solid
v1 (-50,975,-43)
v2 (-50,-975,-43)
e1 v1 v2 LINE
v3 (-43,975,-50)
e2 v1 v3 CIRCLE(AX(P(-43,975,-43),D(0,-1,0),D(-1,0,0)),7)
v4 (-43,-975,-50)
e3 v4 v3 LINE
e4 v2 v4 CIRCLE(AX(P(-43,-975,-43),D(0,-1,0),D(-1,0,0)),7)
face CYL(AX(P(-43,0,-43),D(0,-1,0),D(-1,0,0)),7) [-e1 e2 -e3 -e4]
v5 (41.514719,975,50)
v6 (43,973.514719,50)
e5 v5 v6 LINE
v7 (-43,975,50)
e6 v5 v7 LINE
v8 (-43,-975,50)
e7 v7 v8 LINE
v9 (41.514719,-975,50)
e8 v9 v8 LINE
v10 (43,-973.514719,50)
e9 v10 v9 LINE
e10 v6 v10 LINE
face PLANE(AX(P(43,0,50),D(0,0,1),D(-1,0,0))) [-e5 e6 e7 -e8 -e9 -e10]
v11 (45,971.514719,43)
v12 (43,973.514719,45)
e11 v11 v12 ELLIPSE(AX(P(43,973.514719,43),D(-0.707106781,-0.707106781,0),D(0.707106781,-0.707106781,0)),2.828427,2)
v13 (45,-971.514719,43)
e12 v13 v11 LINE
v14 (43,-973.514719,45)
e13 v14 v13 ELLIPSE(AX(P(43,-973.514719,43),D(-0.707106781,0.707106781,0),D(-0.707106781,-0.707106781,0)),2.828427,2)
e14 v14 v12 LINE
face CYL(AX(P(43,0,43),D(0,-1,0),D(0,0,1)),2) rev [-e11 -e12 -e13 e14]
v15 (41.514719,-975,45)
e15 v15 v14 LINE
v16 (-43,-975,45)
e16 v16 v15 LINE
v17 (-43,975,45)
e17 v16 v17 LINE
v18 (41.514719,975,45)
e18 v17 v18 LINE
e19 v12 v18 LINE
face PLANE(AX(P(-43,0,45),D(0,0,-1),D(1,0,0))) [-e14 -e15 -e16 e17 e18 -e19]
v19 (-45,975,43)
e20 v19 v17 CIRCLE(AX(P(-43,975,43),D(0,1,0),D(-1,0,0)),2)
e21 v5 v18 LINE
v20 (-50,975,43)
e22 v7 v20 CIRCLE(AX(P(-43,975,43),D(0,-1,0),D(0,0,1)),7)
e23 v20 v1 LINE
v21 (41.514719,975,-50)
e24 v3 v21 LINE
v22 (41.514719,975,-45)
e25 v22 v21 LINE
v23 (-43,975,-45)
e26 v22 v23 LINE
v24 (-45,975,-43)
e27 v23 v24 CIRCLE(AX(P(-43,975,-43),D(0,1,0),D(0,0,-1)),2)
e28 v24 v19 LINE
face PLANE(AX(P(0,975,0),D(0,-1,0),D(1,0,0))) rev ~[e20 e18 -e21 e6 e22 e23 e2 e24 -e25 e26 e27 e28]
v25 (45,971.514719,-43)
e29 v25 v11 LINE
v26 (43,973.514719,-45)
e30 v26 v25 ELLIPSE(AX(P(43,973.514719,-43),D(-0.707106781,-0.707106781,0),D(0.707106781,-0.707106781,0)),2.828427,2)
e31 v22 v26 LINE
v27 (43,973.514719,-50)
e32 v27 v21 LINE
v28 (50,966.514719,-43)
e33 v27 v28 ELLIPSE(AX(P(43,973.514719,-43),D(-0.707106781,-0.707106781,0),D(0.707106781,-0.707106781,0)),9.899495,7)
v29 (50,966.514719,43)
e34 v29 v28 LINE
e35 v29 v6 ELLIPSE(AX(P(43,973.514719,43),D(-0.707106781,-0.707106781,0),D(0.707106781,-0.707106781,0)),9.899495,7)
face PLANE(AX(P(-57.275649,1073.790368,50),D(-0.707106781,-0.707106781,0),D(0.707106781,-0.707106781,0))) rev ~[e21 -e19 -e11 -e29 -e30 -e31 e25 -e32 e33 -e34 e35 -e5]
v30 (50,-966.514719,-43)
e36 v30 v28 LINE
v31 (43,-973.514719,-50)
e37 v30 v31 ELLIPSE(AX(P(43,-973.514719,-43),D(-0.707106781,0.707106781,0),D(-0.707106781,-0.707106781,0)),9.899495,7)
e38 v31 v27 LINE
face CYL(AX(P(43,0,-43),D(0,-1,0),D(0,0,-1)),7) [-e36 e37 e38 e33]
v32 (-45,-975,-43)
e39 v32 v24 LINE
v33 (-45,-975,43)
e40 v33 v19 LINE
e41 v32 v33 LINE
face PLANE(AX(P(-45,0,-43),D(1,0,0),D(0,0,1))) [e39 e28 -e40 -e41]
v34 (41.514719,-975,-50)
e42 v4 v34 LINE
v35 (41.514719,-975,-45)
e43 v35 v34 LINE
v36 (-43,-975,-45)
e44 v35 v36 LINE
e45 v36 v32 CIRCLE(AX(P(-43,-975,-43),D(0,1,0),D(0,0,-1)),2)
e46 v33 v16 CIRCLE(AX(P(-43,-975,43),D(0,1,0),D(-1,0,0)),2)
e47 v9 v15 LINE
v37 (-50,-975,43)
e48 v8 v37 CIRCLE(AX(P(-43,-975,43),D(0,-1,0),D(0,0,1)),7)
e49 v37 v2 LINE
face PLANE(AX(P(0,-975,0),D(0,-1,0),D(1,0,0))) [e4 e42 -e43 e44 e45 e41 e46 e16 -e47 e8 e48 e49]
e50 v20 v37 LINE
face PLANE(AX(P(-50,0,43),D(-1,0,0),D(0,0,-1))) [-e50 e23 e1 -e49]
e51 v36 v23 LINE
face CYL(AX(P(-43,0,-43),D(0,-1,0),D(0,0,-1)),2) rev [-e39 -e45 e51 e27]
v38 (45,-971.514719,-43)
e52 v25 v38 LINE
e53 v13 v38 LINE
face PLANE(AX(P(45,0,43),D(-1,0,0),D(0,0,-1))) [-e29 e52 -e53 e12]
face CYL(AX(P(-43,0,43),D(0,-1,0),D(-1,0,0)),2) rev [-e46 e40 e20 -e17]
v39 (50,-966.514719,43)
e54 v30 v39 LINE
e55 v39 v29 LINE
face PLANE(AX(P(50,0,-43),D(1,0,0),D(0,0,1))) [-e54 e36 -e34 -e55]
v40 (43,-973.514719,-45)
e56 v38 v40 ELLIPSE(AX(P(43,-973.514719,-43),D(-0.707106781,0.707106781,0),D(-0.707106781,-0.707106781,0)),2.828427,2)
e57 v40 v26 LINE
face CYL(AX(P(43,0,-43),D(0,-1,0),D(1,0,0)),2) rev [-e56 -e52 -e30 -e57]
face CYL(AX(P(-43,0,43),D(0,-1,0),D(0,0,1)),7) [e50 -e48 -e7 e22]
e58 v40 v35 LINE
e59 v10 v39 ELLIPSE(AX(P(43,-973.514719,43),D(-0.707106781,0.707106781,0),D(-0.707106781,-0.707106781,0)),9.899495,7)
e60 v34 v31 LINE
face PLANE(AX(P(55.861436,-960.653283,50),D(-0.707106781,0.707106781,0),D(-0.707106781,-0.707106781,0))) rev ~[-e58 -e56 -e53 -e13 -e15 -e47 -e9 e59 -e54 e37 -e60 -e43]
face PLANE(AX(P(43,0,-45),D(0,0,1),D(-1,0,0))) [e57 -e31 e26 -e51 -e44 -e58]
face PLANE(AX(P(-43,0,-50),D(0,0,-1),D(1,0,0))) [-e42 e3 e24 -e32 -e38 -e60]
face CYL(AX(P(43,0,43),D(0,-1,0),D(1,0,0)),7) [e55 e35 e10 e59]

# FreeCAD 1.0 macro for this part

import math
import FreeCAD as App
import Part
import Sketcher

V = App.Vector
Q = App.Units.Quantity


def add_polygon(sketch, points):
    """Adds a closed chain of lines whose ends are joined by coincident constraints."""
    first, n = sketch.GeometryCount, len(points)
    for a, b in zip(points, points[1:] + points[:1]):
        sketch.addGeometry(Part.LineSegment(App.Vector(*a, 0), App.Vector(*b, 0)), False)
    for i in range(n):
        sketch.addConstraint(Sketcher.Constraint("Coincident", first + i, 2, first + (i + 1) % n, 1))

doc = App.newDocument("Part")
body = doc.addObject("PartDesign::Body", "Body")

sketch1 = doc.addObject("Sketcher::SketchObject", "Sketch")
body.addObject(sketch1)
sketch1.AttachmentSupport = (doc.XZ_Plane, [""])
sketch1.MapMode = "FlatFace"
sketch1.addGeometry([
    Part.ArcOfCircle(Part.Circle(V(43, 43, 0), V(0, 0, 1), 7), math.radians(0), math.radians(90)),
    Part.LineSegment(V(43, 50, 0), V(-43, 50, 0)),
    Part.ArcOfCircle(Part.Circle(V(-43, 43, 0), V(0, 0, 1), 7), math.radians(90), math.radians(180)),
    Part.LineSegment(V(-50, 43, 0), V(-50, -43, 0)),
    Part.ArcOfCircle(Part.Circle(V(-43, -43, 0), V(0, 0, 1), 7), math.radians(180), math.radians(270)),
    Part.LineSegment(V(-43, -50, 0), V(43, -50, 0)),
    Part.ArcOfCircle(Part.Circle(V(43, -43, 0), V(0, 0, 1), 7), math.radians(-90), math.radians(0)),
    Part.LineSegment(V(50, -43, 0), V(50, 43, 0)),
    Part.LineSegment(V(45, 43, 0), V(45, -43, 0)),
    Part.ArcOfCircle(Part.Circle(V(43, -43, 0), V(0, 0, 1), 2), math.radians(-90), math.radians(0)),
    Part.LineSegment(V(43, -45, 0), V(-43, -45, 0)),
    Part.ArcOfCircle(Part.Circle(V(-43, -43, 0), V(0, 0, 1), 2), math.radians(180), math.radians(270)),
    Part.LineSegment(V(-45, -43, 0), V(-45, 43, 0)),
    Part.ArcOfCircle(Part.Circle(V(-43, 43, 0), V(0, 0, 1), 2), math.radians(90), math.radians(180)),
    Part.LineSegment(V(-43, 45, 0), V(43, 45, 0)),
    Part.ArcOfCircle(Part.Circle(V(43, 43, 0), V(0, 0, 1), 2), math.radians(0), math.radians(90)),
], False)
sketch1.addConstraint([
    Sketcher.Constraint("Tangent", 0, 2, 1, 1),
    Sketcher.Constraint("Tangent", 1, 2, 2, 1),
    Sketcher.Constraint("Tangent", 2, 2, 3, 1),
    Sketcher.Constraint("Tangent", 3, 2, 4, 1),
    Sketcher.Constraint("Tangent", 4, 2, 5, 1),
    Sketcher.Constraint("Tangent", 5, 2, 6, 1),
    Sketcher.Constraint("Tangent", 6, 2, 7, 1),
    Sketcher.Constraint("Tangent", 7, 2, 0, 1),
    Sketcher.Constraint("Tangent", 8, 2, 9, 2),
    Sketcher.Constraint("Tangent", 9, 1, 10, 1),
    Sketcher.Constraint("Tangent", 10, 2, 11, 2),
    Sketcher.Constraint("Tangent", 11, 1, 12, 1),
    Sketcher.Constraint("Tangent", 12, 2, 13, 2),
    Sketcher.Constraint("Tangent", 13, 1, 14, 1),
    Sketcher.Constraint("Tangent", 14, 2, 15, 2),
    Sketcher.Constraint("Tangent", 15, 1, 8, 1),
    Sketcher.Constraint("Horizontal", 1),
    Sketcher.Constraint("Vertical", 3),
    Sketcher.Constraint("Horizontal", 5),
    Sketcher.Constraint("Vertical", 7),
    Sketcher.Constraint("Vertical", 8),
    Sketcher.Constraint("Horizontal", 10),
    Sketcher.Constraint("Vertical", 12),
    Sketcher.Constraint("Horizontal", 14),
    Sketcher.Constraint("Coincident", 9, 3, 6, 3),
    Sketcher.Constraint("Coincident", 11, 3, 4, 3),
    Sketcher.Constraint("Coincident", 13, 3, 2, 3),
    Sketcher.Constraint("Equal", 0, 2),
    Sketcher.Constraint("Equal", 2, 4),
    Sketcher.Constraint("Equal", 4, 6),
    Sketcher.Constraint("Equal", 13, 15),
    Sketcher.Constraint("Symmetric", 0, 3, 4, 3, -1, 1),
    Sketcher.Constraint("Equal", 14, 3),
    Sketcher.Constraint("Radius", 0, Q("7 mm")),
    Sketcher.Constraint("Radius", 9, Q("2 mm")),
    Sketcher.Constraint("DistanceX", 1, 2, 1, 1, Q("86 mm")),
])
pad1 = doc.addObject("PartDesign::Pad", "Pad")
body.addObject(pad1)
pad1.Profile = sketch1
pad1.Length = 1950
pad1.Midplane = True

sketch2 = doc.addObject("Sketcher::SketchObject", "Sketch001")
body.addObject(sketch2)
sketch2.AttachmentSupport = (doc.XY_Plane, [""])
sketch2.MapMode = "FlatFace"
sketch2.AttachmentOffset = App.Placement(V(0, 0, 50), App.Rotation())
add_polygon(sketch2, [(56, -961), (-57, -1074), (-49, -1082), (64, -969)])
add_polygon(sketch2, [(-49, 1082), (-57, 1074), (56, 961), (64, 969)])
sketch2.addConstraint([
    Sketcher.Constraint("Symmetric", 0, 2, 4, 2, -1),
    Sketcher.Constraint("Symmetric", 3, 2, 5, 2, -1),
    Sketcher.Constraint("Symmetric", 2, 2, 6, 2, -1),
    Sketcher.Constraint("Symmetric", 1, 2, 7, 2, -1),
    Sketcher.Constraint("Perpendicular", 0, 1),
    Sketcher.Constraint("Perpendicular", 1, 2),
    Sketcher.Constraint("Perpendicular", 2, 3),
    Sketcher.Constraint("Perpendicular", 3, 4),
    Sketcher.Constraint("Distance", 0, Q("160 mm")),
    Sketcher.Constraint("Distance", 1, Q("12 mm")),
    Sketcher.Constraint("DistanceX", 0, 2, -1, 1, Q("57.275649 mm")),
    Sketcher.Constraint("DistanceY", 1, 2, -1, 1, Q("1082.275649 mm")),
])
pocket1 = doc.addObject("PartDesign::Pocket", "Pocket")
body.addObject(pocket1)
pocket1.Profile = sketch2
pocket1.Type = "ThroughAll"

doc.recompute()
